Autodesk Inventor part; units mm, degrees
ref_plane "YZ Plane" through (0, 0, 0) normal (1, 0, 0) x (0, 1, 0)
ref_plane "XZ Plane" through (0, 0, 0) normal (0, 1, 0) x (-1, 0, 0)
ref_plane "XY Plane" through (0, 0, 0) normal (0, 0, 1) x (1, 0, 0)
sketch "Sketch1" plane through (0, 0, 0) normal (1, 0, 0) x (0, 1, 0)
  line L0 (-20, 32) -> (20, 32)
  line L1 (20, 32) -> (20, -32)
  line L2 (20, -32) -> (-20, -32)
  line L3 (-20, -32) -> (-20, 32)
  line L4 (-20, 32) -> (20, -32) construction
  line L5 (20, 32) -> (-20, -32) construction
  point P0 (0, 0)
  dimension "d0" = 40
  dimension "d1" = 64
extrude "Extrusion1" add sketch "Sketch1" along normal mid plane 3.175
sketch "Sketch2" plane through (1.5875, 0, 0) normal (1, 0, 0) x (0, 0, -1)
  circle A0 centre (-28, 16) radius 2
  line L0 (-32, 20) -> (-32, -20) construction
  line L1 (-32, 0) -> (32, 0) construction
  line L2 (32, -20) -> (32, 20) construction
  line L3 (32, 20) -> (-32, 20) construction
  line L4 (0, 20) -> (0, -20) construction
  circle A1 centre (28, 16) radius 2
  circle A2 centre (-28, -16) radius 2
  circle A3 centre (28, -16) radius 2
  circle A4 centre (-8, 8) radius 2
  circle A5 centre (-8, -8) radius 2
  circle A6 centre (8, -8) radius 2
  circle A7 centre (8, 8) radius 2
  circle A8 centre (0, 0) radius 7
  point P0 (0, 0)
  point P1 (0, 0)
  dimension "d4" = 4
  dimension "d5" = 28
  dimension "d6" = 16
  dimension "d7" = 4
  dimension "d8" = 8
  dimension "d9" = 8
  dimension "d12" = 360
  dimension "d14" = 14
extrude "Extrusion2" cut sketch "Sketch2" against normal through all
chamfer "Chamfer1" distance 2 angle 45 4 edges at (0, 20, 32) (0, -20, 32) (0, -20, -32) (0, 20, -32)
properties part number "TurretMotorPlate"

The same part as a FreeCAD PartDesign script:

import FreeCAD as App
import Part
import Sketcher
from FreeCAD import Vector


def edges_at(feature, points):
    """Names of the edges that pass closest to the given points."""
    edges = feature.Shape.Edges
    near = lambda p: min(range(len(edges)), key=lambda i: edges[i].distToShape(Part.Vertex(*p))[0])
    return sorted({f"Edge{near(p) + 1}" for p in points})


def add_polygon(sketch, points):
    """Adds a closed chain of lines whose ends are joined by coincident constraints."""
    first, n = sketch.GeometryCount, len(points)
    for a, b in zip(points, points[1:] + points[:1]):
        sketch.addGeometry(Part.LineSegment(App.Vector(*a, 0), App.Vector(*b, 0)), False)
    for i in range(n):
        sketch.addConstraint(Sketcher.Constraint("Coincident", first + i, 2, first + (i + 1) % n, 1))

doc = App.newDocument("Part")
body = doc.addObject("PartDesign::Body", "Body")

sketch1 = body.newObject("Sketcher::SketchObject", "Sketch")
sketch1.AttachmentSupport = (doc.getObject("YZ_Plane"), [""])
sketch1.MapMode = "FlatFace"
add_polygon(sketch1, [(20, 32), (-20, 32), (-20, -32), (20, -32)])
sketch1.addConstraint(Sketcher.Constraint("Horizontal", 0))
sketch1.addConstraint(Sketcher.Constraint("Vertical", 1))
sketch1.addConstraint(Sketcher.Constraint("Horizontal", 2))
sketch1.addConstraint(Sketcher.Constraint("Vertical", 3))
sketch1.addConstraint(Sketcher.Constraint("Symmetric", 0, 2, 2, 2, -1, 1))
sketch1.addConstraint(Sketcher.Constraint("DistanceX", 0, 2, 0, 1, 40.0))
sketch1.addConstraint(Sketcher.Constraint("DistanceY", 1, 2, 1, 1, 64.0))
pad1 = body.newObject("PartDesign::Pad", "Pad")
pad1.Profile = sketch1
pad1.Length = 3.175
pad1.Midplane = True

sketch2 = body.newObject("Sketcher::SketchObject", "Sketch001")
sketch2.AttachmentSupport = (doc.getObject("YZ_Plane"), [""])
sketch2.MapMode = "FlatFace"
sketch2.AttachmentOffset = App.Placement(Vector(0, 0, 1.5875), App.Rotation())
sketch2.addGeometry(Part.Circle(Vector(16, 28, 0), Vector(0, 0, 1), 2), False)
sketch2.addGeometry(Part.Circle(Vector(16, -28, 0), Vector(0, 0, 1), 2), False)
sketch2.addGeometry(Part.Circle(Vector(-16, 28, 0), Vector(0, 0, 1), 2), False)
sketch2.addGeometry(Part.Circle(Vector(-16, -28, 0), Vector(0, 0, 1), 2), False)
sketch2.addGeometry(Part.Circle(Vector(8, 8, 0), Vector(0, 0, 1), 2), False)
sketch2.addGeometry(Part.Circle(Vector(-8, 8, 0), Vector(0, 0, 1), 2), False)
sketch2.addGeometry(Part.Circle(Vector(-8, -8, 0), Vector(0, 0, 1), 2), False)
sketch2.addGeometry(Part.Circle(Vector(8, -8, 0), Vector(0, 0, 1), 2), False)
sketch2.addGeometry(Part.Circle(Vector(0, 0, 0), Vector(0, 0, 1), 7), False)
sketch2.addConstraint(Sketcher.Constraint("Coincident", 8, 3, -1, 1))
sketch2.addConstraint(Sketcher.Constraint("Equal", 0, 1))
sketch2.addConstraint(Sketcher.Constraint("Equal", 1, 2))
sketch2.addConstraint(Sketcher.Constraint("Equal", 2, 3))
sketch2.addConstraint(Sketcher.Constraint("Equal", 3, 4))
sketch2.addConstraint(Sketcher.Constraint("Equal", 4, 5))
sketch2.addConstraint(Sketcher.Constraint("Equal", 5, 6))
sketch2.addConstraint(Sketcher.Constraint("Equal", 6, 7))
sketch2.addConstraint(Sketcher.Constraint("Symmetric", 1, 3, 2, 3, -1, 1))
sketch2.addConstraint(Sketcher.Constraint("Symmetric", 0, 3, 3, 3, -1, 1))
sketch2.addConstraint(Sketcher.Constraint("Symmetric", 4, 3, 6, 3, -1, 1))
sketch2.addConstraint(Sketcher.Constraint("Symmetric", 5, 3, 7, 3, -1, 1))
sketch2.addConstraint(Sketcher.Constraint("Symmetric", 0, 3, 2, 3, -2))
sketch2.addConstraint(Sketcher.Constraint("Symmetric", 4, 3, 5, 3, -2))
sketch2.addConstraint(Sketcher.Constraint("Diameter", 0, 4.0))
sketch2.addConstraint(Sketcher.Constraint("Diameter", 8, 14.0))
sketch2.addConstraint(Sketcher.Constraint("DistanceX", -1, 1, 0, 3, 16.0))
sketch2.addConstraint(Sketcher.Constraint("DistanceY", -1, 1, 0, 3, 28.0))
sketch2.addConstraint(Sketcher.Constraint("DistanceX", -1, 1, 4, 3, 8.0))
sketch2.addConstraint(Sketcher.Constraint("DistanceY", -1, 1, 4, 3, 8.0))
pocket1 = body.newObject("PartDesign::Pocket", "Pocket")
pocket1.Profile = sketch2
pocket1.Type = "ThroughAll"
doc.recompute()

chamfer = body.newObject("PartDesign::Chamfer", "Chamfer")
chamfer.Base = (pocket1, edges_at(pocket1, [
    (0, 20, 32),
    (0, -20, 32),
    (0, -20, -32),
    (0, 20, -32),
]))
chamfer.Size = 2

doc.recompute()
